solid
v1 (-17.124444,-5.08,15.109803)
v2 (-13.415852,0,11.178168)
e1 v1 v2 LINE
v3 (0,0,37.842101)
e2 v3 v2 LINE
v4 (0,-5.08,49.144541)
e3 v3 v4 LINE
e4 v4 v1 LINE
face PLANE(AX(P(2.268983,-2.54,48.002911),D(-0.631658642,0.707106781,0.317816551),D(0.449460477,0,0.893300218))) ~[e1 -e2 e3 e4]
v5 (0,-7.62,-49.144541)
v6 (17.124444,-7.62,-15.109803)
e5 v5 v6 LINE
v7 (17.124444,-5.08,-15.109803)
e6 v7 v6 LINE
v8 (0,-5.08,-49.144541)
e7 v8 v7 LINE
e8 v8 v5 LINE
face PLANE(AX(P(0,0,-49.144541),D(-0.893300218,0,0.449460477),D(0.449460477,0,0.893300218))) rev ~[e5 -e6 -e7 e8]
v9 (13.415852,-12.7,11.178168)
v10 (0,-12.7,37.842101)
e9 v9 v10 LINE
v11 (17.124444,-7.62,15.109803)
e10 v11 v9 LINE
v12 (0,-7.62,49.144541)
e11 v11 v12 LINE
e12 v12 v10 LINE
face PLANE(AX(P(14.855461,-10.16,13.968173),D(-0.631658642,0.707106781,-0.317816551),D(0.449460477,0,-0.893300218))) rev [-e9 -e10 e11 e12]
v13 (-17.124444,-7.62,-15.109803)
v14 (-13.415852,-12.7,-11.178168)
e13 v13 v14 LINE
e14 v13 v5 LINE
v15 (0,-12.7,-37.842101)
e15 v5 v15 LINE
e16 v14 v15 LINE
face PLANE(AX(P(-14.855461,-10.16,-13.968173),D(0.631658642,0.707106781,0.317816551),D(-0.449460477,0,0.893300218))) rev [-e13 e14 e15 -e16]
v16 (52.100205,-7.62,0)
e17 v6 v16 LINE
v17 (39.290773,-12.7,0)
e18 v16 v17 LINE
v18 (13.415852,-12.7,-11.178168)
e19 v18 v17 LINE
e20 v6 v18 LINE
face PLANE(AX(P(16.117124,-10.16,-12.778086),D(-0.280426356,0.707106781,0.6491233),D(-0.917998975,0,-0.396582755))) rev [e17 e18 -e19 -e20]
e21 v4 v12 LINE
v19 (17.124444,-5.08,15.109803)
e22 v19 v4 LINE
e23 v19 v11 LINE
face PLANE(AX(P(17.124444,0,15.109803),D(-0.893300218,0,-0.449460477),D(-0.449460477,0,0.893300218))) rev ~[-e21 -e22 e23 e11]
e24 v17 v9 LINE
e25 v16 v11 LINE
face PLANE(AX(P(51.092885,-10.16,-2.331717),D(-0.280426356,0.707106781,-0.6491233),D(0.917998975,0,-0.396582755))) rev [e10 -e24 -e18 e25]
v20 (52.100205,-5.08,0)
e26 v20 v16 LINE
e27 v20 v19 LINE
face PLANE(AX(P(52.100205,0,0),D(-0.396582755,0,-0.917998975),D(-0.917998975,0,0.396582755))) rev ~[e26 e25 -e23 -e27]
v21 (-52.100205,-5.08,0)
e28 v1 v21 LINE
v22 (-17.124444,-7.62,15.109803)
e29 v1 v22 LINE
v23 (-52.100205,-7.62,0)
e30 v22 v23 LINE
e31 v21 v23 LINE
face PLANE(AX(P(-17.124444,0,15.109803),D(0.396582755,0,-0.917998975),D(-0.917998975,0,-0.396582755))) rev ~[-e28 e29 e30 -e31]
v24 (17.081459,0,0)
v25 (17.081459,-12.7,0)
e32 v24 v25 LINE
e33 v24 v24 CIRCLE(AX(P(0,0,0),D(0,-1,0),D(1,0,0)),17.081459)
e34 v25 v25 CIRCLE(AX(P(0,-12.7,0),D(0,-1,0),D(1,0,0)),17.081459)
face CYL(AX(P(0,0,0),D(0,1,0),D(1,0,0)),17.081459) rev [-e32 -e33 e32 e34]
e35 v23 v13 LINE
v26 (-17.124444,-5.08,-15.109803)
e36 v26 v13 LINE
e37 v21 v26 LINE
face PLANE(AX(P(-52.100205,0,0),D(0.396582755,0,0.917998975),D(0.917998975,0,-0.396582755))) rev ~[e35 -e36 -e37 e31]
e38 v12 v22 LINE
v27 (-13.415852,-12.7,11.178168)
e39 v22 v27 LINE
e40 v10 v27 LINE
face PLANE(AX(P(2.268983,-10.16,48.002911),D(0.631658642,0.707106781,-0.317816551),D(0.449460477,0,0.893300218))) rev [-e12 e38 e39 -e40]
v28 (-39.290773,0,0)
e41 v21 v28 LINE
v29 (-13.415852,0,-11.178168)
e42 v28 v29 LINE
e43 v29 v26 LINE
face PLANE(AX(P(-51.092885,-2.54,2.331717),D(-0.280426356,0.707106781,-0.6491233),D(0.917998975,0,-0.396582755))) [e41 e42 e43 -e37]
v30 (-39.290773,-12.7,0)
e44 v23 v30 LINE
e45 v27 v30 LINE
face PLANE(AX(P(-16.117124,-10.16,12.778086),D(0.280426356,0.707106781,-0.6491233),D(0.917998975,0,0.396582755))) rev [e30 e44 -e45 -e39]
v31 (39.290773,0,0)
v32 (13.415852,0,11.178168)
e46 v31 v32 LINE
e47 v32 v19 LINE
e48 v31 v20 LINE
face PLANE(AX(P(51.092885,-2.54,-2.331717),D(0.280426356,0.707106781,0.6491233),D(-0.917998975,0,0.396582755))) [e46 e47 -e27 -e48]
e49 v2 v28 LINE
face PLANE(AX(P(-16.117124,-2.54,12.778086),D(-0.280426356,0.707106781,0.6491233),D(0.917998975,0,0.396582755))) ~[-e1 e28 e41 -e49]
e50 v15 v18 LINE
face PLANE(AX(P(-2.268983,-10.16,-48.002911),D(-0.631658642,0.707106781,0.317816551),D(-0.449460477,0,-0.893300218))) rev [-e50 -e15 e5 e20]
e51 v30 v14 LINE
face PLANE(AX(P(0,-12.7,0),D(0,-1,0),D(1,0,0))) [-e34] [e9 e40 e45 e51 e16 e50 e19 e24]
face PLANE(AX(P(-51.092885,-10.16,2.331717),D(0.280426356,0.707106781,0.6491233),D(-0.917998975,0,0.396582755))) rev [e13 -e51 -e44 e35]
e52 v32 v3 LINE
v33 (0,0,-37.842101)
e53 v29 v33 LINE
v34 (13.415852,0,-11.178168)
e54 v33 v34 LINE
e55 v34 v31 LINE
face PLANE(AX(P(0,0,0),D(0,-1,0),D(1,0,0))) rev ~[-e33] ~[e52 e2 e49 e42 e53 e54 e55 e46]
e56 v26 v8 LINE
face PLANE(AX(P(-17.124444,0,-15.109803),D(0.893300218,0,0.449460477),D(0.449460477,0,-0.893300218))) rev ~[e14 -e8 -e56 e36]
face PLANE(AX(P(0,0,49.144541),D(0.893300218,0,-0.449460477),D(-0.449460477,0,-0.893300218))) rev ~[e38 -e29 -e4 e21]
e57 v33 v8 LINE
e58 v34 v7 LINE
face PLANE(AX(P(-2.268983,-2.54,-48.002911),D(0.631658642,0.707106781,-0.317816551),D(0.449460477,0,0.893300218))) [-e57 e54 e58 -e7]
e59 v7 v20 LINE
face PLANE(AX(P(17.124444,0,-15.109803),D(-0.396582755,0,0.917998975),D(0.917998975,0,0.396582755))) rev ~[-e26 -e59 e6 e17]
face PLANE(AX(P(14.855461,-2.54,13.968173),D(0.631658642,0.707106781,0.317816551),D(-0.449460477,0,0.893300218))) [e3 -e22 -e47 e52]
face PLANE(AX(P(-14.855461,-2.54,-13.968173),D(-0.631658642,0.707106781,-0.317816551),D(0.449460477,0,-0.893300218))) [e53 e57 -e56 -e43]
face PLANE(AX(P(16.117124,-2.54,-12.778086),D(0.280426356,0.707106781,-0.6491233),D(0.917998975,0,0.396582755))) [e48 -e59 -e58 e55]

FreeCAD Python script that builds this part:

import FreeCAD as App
import Part
import Sketcher
Q = App.Units.Quantity


def edges_at(feature, points):
    """Names of the edges that pass closest to the given points."""
    edges = feature.Shape.Edges
    near = lambda p: min(range(len(edges)), key=lambda i: edges[i].distToShape(Part.Vertex(*p))[0])
    return sorted({f"Edge{near(p) + 1}" for p in points})

doc = App.newDocument("Part")
body = doc.addObject("PartDesign::Body", "Body")

# Sketch on XZ plane
sketch1 = doc.addObject("Sketcher::SketchObject", "Sketch")
body.addObject(sketch1)
sketch1.AttachmentSupport = (doc.XZ_Plane, [""])
sketch1.MapMode = "FlatFace"
sketch1.addGeometry([
    Part.LineSegment(App.Vector(-17.124444, 15.109803, 0), App.Vector(-52.100205, 0, 0)),  # 0
    Part.LineSegment(App.Vector(-52.100205, 0, 0), App.Vector(-17.124444, -15.109803, 0)),  # 1
    Part.LineSegment(App.Vector(-17.124444, -15.109803, 0), App.Vector(0, -49.144541, 0)),  # 2
    Part.LineSegment(App.Vector(0, -49.144541, 0), App.Vector(17.124444, -15.109803, 0)),  # 3
    Part.LineSegment(App.Vector(17.124444, -15.109803, 0), App.Vector(52.100205, 0, 0)),  # 4
    Part.LineSegment(App.Vector(52.100205, 0, 0), App.Vector(17.124444, 15.109803, 0)),  # 5
    Part.LineSegment(App.Vector(17.124444, 15.109803, 0), App.Vector(0, 49.144541, 0)),  # 6
    Part.LineSegment(App.Vector(0, 49.144541, 0), App.Vector(-17.124444, 15.109803, 0)),  # 7
    Part.Circle(App.Vector(0, 0, 0), App.Vector(0, 0, 1), 17.081459),  # 8
], False)
sketch1.addConstraint([
    Sketcher.Constraint("Coincident", 0, 2, 1, 1),
    Sketcher.Constraint("Coincident", 1, 2, 2, 1),
    Sketcher.Constraint("Coincident", 2, 2, 3, 1),
    Sketcher.Constraint("Coincident", 3, 2, 4, 1),
    Sketcher.Constraint("Coincident", 4, 2, 5, 1),
    Sketcher.Constraint("Coincident", 5, 2, 6, 1),
    Sketcher.Constraint("Coincident", 6, 2, 7, 1),
    Sketcher.Constraint("Coincident", 7, 2, 0, 1),
    Sketcher.Constraint("Coincident", 8, 3, -1, 1),
    Sketcher.Constraint("Symmetric", 0, 2, 4, 2, -1, 1),
    Sketcher.Constraint("Symmetric", 1, 2, 5, 2, -1, 1),
    Sketcher.Constraint("Symmetric", 2, 2, 6, 2, -1, 1),
    Sketcher.Constraint("Symmetric", 3, 2, 7, 2, -1, 1),
    Sketcher.Constraint("Symmetric", 1, 2, 3, 2, -2),
    Sketcher.Constraint("PointOnObject", 0, 2, -1),
    Sketcher.Constraint("PointOnObject", 2, 2, -2),
    Sketcher.Constraint("Equal", 1, 2),
    Sketcher.Constraint("Distance", 0, Q("1.5 in")),
    Sketcher.Constraint("Diameter", 8, Q("34.162918 mm")),
    Sketcher.Constraint("DistanceY", 2, 2, -1, 1, Q("49.144541 mm")),
    Sketcher.Constraint("DistanceX", 0, 2, 1, 2, Q("34.975761 mm")),
])
pad1 = doc.addObject("PartDesign::Pad", "Pad")
body.addObject(pad1)
pad1.Profile = sketch1
pad1.Length = Q("0.5 in")
doc.recompute()

chamfer = doc.addObject("PartDesign::Chamfer", "Chamfer")
body.addObject(chamfer)
chamfer.Base = (pad1, edges_at(pad1, [
    (-34.612, -12.7, -7.555),
    (-34.612, -12.7, 7.555),
    (-8.562, -12.7, 32.127),
    (8.562, -12.7, 32.127),
    (34.612, -12.7, 7.555),
    (34.612, -12.7, -7.555),
    (8.562, -12.7, -32.127),
    (-8.562, -12.7, -32.127),
]))
chamfer.Size = Q("0.2 in")
doc.recompute()

chamfer2 = doc.addObject("PartDesign::Chamfer", "Chamfer001")
body.addObject(chamfer2)
chamfer2.Base = (chamfer, edges_at(chamfer, [
    (8.562, 0, 32.127),
    (-8.562, 0, 32.127),
    (-34.612, 0, 7.555),
    (-34.612, 0, -7.555),
    (-8.562, 0, -32.127),
    (8.562, 0, -32.127),
    (34.612, 0, -7.555),
    (34.612, 0, 7.555),
]))
chamfer2.Size = Q("0.2 in")

doc.recompute()
